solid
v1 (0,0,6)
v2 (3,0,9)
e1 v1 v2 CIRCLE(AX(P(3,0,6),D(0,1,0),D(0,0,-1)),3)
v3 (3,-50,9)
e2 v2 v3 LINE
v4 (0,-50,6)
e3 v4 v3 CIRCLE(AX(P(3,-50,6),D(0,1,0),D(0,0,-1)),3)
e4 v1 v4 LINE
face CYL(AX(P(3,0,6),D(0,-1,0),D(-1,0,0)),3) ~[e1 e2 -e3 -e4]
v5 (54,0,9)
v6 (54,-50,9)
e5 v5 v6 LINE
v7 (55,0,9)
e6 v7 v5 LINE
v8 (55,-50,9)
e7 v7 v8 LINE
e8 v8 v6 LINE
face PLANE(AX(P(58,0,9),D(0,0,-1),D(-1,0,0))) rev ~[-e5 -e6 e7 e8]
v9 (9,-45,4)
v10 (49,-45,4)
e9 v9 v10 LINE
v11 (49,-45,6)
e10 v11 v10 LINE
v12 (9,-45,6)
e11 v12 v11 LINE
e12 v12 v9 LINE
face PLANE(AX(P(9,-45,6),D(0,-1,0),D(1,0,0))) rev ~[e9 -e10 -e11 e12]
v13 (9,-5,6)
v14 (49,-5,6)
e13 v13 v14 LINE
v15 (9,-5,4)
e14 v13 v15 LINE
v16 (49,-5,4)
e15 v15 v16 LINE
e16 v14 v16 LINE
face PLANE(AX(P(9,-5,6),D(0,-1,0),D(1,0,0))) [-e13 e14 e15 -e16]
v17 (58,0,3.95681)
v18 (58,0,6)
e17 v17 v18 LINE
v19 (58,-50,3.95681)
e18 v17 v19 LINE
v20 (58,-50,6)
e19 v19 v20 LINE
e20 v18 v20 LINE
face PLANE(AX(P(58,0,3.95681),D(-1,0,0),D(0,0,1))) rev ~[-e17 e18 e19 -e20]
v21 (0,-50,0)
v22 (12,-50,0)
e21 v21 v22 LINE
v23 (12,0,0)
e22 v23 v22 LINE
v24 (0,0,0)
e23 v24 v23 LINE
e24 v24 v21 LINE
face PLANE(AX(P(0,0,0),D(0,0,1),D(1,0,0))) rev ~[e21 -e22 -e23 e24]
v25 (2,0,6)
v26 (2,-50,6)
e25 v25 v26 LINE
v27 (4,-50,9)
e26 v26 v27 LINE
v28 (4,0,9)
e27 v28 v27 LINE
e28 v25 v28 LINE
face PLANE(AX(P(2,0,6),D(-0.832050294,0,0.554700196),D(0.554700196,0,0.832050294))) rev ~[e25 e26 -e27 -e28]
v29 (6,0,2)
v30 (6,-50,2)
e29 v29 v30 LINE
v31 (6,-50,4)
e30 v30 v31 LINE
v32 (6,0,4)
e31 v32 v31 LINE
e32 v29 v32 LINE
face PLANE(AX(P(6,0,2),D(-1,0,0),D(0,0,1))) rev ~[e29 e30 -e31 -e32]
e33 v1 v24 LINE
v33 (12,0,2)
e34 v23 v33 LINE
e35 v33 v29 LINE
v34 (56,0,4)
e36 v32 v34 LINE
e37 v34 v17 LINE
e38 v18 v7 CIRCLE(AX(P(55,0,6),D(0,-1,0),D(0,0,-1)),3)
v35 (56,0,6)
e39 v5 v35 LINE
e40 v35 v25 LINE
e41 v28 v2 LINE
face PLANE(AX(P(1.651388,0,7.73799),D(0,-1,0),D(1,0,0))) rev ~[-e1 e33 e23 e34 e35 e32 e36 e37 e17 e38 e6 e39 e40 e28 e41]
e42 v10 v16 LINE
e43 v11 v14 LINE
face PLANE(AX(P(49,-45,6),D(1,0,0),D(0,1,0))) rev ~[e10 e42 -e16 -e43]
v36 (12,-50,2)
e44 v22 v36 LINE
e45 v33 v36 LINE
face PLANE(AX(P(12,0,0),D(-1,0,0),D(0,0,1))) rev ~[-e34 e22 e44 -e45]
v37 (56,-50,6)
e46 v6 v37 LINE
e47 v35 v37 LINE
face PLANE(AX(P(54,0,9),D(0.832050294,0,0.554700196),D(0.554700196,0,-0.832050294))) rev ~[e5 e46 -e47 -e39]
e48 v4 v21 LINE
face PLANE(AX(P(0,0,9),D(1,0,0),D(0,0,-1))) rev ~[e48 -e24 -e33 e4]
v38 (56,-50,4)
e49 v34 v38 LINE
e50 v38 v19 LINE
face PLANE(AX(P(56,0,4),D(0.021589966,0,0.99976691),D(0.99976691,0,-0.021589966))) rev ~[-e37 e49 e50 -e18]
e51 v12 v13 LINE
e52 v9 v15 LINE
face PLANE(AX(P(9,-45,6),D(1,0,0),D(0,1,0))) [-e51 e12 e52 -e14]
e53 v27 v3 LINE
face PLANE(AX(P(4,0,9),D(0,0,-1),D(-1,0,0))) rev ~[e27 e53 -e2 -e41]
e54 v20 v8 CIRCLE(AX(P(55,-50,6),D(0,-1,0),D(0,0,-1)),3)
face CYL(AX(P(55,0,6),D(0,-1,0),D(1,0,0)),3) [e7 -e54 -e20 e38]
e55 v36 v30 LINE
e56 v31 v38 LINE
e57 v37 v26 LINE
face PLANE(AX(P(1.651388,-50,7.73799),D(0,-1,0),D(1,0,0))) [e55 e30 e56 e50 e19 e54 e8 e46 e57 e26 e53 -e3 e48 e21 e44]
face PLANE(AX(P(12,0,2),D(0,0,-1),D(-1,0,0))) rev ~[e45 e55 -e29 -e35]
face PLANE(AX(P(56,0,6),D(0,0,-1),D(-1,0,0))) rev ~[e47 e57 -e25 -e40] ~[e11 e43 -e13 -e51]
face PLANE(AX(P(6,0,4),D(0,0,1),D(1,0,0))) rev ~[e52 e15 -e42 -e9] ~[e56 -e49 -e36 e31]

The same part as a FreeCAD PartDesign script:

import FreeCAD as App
import Part
import Sketcher
Q = App.Units.Quantity


def edges_at(feature, points):
    """Names of the edges that pass closest to the given points."""
    edges = feature.Shape.Edges
    near = lambda p: min(range(len(edges)), key=lambda i: edges[i].distToShape(Part.Vertex(*p))[0])
    return sorted({f"Edge{near(p) + 1}" for p in points})

doc = App.newDocument("Part")
params = doc.addObject("Spreadsheet::Sheet", "Params")
for row, (alias, value) in enumerate([
    ("sketch1_width", "12 mm"),
    ("sketch1_width2", "6 mm"),
    ("sketch1_width3", "50 mm"),
    ("sketch1_width4", "4 mm"),
    ("sketch1_width5", "54 mm"),
    ("pad1_length", "50 mm"),
    ("fillet_radius", "3 mm"),
    ("sketch2_width", "40 mm"),
    ("pocket1_length", "2 mm"),
], start=1):
    params.set(f"A{row}", alias)
    params.set(f"B{row}", "=" + value)
    params.setAlias(f"B{row}", alias)

body = doc.addObject("PartDesign::Body", "Body")

# Sketch on XZ plane
sketch1 = body.newObject("Sketcher::SketchObject", "Sketch")
sketch1.AttachmentSupport = (doc.getObject("XZ_Plane"), [""])
sketch1.MapMode = "FlatFace"
sketch1.addGeometry(Part.LineSegment(App.Vector(0, 9, 0), App.Vector(0, 0, 0)), False)
sketch1.addGeometry(Part.LineSegment(App.Vector(0, 0, 0), App.Vector(12, 0, 0)), False)
sketch1.addGeometry(Part.LineSegment(App.Vector(12, 0, 0), App.Vector(12, 2, 0)), False)
sketch1.addGeometry(Part.LineSegment(App.Vector(12, 2, 0), App.Vector(6, 2, 0)), False)
sketch1.addGeometry(Part.LineSegment(App.Vector(6, 2, 0), App.Vector(6, 4, 0)), False)
sketch1.addGeometry(Part.LineSegment(App.Vector(6, 4, 0), App.Vector(56, 4, 0)), False)
sketch1.addGeometry(Part.LineSegment(App.Vector(56, 4, 0), App.Vector(58, 3.95681, 0)), False)
sketch1.addGeometry(Part.LineSegment(App.Vector(58, 3.95681, 0), App.Vector(58, 9, 0)), False)
sketch1.addGeometry(Part.LineSegment(App.Vector(58, 9, 0), App.Vector(54, 9, 0)), False)
sketch1.addGeometry(Part.LineSegment(App.Vector(54, 9, 0), App.Vector(56, 6, 0)), False)
sketch1.addGeometry(Part.LineSegment(App.Vector(56, 6, 0), App.Vector(2, 6, 0)), False)
sketch1.addGeometry(Part.LineSegment(App.Vector(2, 6, 0), App.Vector(4, 9, 0)), False)
sketch1.addGeometry(Part.LineSegment(App.Vector(4, 9, 0), App.Vector(0, 9, 0)), False)
sketch1.addConstraint(Sketcher.Constraint("Coincident", 0, 2, 1, 1))
sketch1.addConstraint(Sketcher.Constraint("Coincident", 1, 2, 2, 1))
sketch1.addConstraint(Sketcher.Constraint("Coincident", 2, 2, 3, 1))
sketch1.addConstraint(Sketcher.Constraint("Coincident", 3, 2, 4, 1))
sketch1.addConstraint(Sketcher.Constraint("Coincident", 4, 2, 5, 1))
sketch1.addConstraint(Sketcher.Constraint("Coincident", 5, 2, 6, 1))
sketch1.addConstraint(Sketcher.Constraint("Coincident", 6, 2, 7, 1))
sketch1.addConstraint(Sketcher.Constraint("Coincident", 7, 2, 8, 1))
sketch1.addConstraint(Sketcher.Constraint("Coincident", 8, 2, 9, 1))
sketch1.addConstraint(Sketcher.Constraint("Coincident", 9, 2, 10, 1))
sketch1.addConstraint(Sketcher.Constraint("Coincident", 10, 2, 11, 1))
sketch1.addConstraint(Sketcher.Constraint("Coincident", 11, 2, 12, 1))
sketch1.addConstraint(Sketcher.Constraint("Coincident", 12, 2, 0, 1))
sketch1.addConstraint(Sketcher.Constraint("Vertical", 0))
sketch1.addConstraint(Sketcher.Constraint("Horizontal", 1))
sketch1.addConstraint(Sketcher.Constraint("Vertical", 2))
sketch1.addConstraint(Sketcher.Constraint("Horizontal", 3))
sketch1.addConstraint(Sketcher.Constraint("Vertical", 4))
sketch1.addConstraint(Sketcher.Constraint("Horizontal", 5))
sketch1.addConstraint(Sketcher.Constraint("Vertical", 7))
sketch1.addConstraint(Sketcher.Constraint("Horizontal", 8))
sketch1.addConstraint(Sketcher.Constraint("Horizontal", 10))
sketch1.addConstraint(Sketcher.Constraint("Horizontal", 12))
sketch1.addConstraint(Sketcher.Constraint("Coincident", 0, 2, -1, 1))
sketch1.addConstraint(Sketcher.Constraint("Horizontal", 8, 2, 11, 2))
sketch1.addConstraint(Sketcher.Constraint("Vertical", 5, 2, 9, 2))
sketch1.addConstraint(Sketcher.Constraint("Equal", 8, 12))
sketch1.addConstraint(Sketcher.Constraint("Equal", 2, 4))
sketch1.addConstraint(Sketcher.Constraint("Equal", 9, 11))
sketch1.addConstraint(Sketcher.Constraint("DistanceX", 1, 1, 1, 2, Q("12 mm")))
sketch1.addConstraint(Sketcher.Constraint("DistanceX", 3, 2, 3, 1, Q("6 mm")))
sketch1.addConstraint(Sketcher.Constraint("DistanceX", 5, 1, 5, 2, Q("50 mm")))
sketch1.addConstraint(Sketcher.Constraint("DistanceX", 8, 2, 8, 1, Q("4 mm")))
sketch1.addConstraint(Sketcher.Constraint("DistanceX", 10, 2, 10, 1, Q("54 mm")))
sketch1.addConstraint(Sketcher.Constraint("DistanceY", 0, 2, 0, 1, Q("9 mm")))
sketch1.addConstraint(Sketcher.Constraint("DistanceY", 2, 1, 2, 2, Q("2 mm")))
sketch1.addConstraint(Sketcher.Constraint("DistanceY", -1, 1, 9, 2, Q("6 mm")))
sketch1.addConstraint(Sketcher.Constraint("DistanceY", 7, 1, 7, 2, Q("5.04319 mm")))
sketch1.setExpression("Constraints[29]", "Params.sketch1_width")
sketch1.setExpression("Constraints[30]", "Params.sketch1_width2")
sketch1.setExpression("Constraints[31]", "Params.sketch1_width3")
sketch1.setExpression("Constraints[32]", "Params.sketch1_width4")
sketch1.setExpression("Constraints[33]", "Params.sketch1_width5")
pad1 = body.newObject("PartDesign::Pad", "Pad")
pad1.Profile = sketch1
pad1.setExpression("Length", "Params.pad1_length")
doc.recompute()

fillet = body.newObject("PartDesign::Fillet", "Fillet")
fillet.Base = (pad1, edges_at(pad1, [(0, -25, 9), (58, -25, 9)]))
fillet.setExpression("Radius", "Params.fillet_radius")

# Sketch on XY plane
sketch2 = body.newObject("Sketcher::SketchObject", "Sketch001")
sketch2.AttachmentSupport = (doc.getObject("XY_Plane"), [""])
sketch2.MapMode = "FlatFace"
sketch2.AttachmentOffset = App.Placement(App.Vector(0, 0, 6), App.Rotation())
sketch2.addGeometry(Part.LineSegment(App.Vector(9, -5, 0), App.Vector(9, -45, 0)), False)
sketch2.addGeometry(Part.LineSegment(App.Vector(9, -45, 0), App.Vector(49, -45, 0)), False)
sketch2.addGeometry(Part.LineSegment(App.Vector(49, -45, 0), App.Vector(49, -5, 0)), False)
sketch2.addGeometry(Part.LineSegment(App.Vector(49, -5, 0), App.Vector(9, -5, 0)), False)
sketch2.addConstraint(Sketcher.Constraint("Coincident", 0, 2, 1, 1))
sketch2.addConstraint(Sketcher.Constraint("Coincident", 1, 2, 2, 1))
sketch2.addConstraint(Sketcher.Constraint("Coincident", 2, 2, 3, 1))
sketch2.addConstraint(Sketcher.Constraint("Coincident", 3, 2, 0, 1))
sketch2.addConstraint(Sketcher.Constraint("Vertical", 0))
sketch2.addConstraint(Sketcher.Constraint("Horizontal", 1))
sketch2.addConstraint(Sketcher.Constraint("Vertical", 2))
sketch2.addConstraint(Sketcher.Constraint("Horizontal", 3))
sketch2.addConstraint(Sketcher.Constraint("Equal", 3, 0))
sketch2.addConstraint(Sketcher.Constraint("DistanceX", 1, 1, 1, 2, Q("40 mm")))
sketch2.addConstraint(Sketcher.Constraint("DistanceX", -1, 1, 0, 2, Q("9 mm")))
sketch2.addConstraint(Sketcher.Constraint("DistanceY", 0, 2, -1, 1, Q("45 mm")))
sketch2.setExpression("Constraints[9]", "Params.sketch2_width")
pocket1 = body.newObject("PartDesign::Pocket", "Pocket")
pocket1.Profile = sketch2
pocket1.setExpression("Length", "Params.pocket1_length")

doc.recompute()
